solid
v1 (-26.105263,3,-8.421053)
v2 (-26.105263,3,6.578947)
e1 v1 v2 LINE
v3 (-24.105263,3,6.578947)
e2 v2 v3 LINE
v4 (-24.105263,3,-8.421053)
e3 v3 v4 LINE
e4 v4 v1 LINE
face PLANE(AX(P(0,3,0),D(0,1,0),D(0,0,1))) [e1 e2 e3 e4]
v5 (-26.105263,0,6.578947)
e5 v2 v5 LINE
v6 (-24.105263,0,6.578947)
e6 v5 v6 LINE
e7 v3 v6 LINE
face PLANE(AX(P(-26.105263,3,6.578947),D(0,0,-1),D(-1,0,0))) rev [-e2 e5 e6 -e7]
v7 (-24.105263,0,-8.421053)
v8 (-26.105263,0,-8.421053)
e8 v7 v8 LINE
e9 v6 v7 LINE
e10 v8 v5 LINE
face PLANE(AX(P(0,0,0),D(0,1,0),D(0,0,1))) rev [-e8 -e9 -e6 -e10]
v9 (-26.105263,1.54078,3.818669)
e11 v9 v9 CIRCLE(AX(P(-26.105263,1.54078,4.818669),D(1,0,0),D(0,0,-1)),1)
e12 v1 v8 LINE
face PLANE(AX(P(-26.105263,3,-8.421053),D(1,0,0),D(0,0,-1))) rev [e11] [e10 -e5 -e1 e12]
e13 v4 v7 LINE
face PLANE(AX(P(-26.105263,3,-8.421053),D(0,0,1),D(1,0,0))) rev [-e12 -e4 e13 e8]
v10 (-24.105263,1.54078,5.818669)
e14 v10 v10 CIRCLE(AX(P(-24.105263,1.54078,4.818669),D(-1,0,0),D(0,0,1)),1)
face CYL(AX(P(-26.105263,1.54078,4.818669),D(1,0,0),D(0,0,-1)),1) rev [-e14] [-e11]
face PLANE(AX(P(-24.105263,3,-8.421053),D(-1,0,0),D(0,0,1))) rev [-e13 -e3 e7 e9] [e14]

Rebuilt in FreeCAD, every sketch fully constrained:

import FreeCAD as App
import Part
import Sketcher
from FreeCAD import Vector
Q = App.Units.Quantity

doc = App.newDocument("Part")
body = doc.addObject("PartDesign::Body", "Body")

# Sketch on XZ plane
sketch1 = body.newObject("Sketcher::SketchObject", "Sketch")
sketch1.AttachmentSupport = (doc.getObject("XZ_Plane"), [""])
sketch1.MapMode = "FlatFace"
sketch1.addGeometry([
    Part.LineSegment(Vector(-26.1, -8.4, 0), Vector(-26.1, 6.6, 0)),
    Part.LineSegment(Vector(-26.1, 6.6, 0), Vector(-24.1, 6.6, 0)),
    Part.LineSegment(Vector(-24.1, 6.6, 0), Vector(-24.1, -8.4, 0)),
    Part.LineSegment(Vector(-24.1, -8.4, 0), Vector(-26.1, -8.4, 0)),
], False)
sketch1.addConstraint([
    Sketcher.Constraint("Coincident", 0, 2, 1, 1),
    Sketcher.Constraint("Coincident", 1, 2, 2, 1),
    Sketcher.Constraint("Coincident", 2, 2, 3, 1),
    Sketcher.Constraint("Coincident", 3, 2, 0, 1),
    Sketcher.Constraint("Vertical", 0),
    Sketcher.Constraint("Horizontal", 1),
    Sketcher.Constraint("Vertical", 2),
    Sketcher.Constraint("Horizontal", 3),
    Sketcher.Constraint("DistanceX", 1, 1, 1, 2, Q("2 mm")),
    Sketcher.Constraint("DistanceY", 0, 1, 0, 2, Q("15 mm")),
    Sketcher.Constraint("DistanceX", 0, 2, -1, 1, Q("26.105263 mm")),
    Sketcher.Constraint("DistanceY", -1, 1, 0, 2, Q("6.578947 mm")),
])
pad1 = body.newObject("PartDesign::Pad", "Pad")
pad1.Profile = sketch1
pad1.Length = 3
pad1.Reversed = True

# Sketch on YZ plane
sketch2 = body.newObject("Sketcher::SketchObject", "Sketch001")
sketch2.AttachmentSupport = (doc.getObject("YZ_Plane"), [""])
sketch2.MapMode = "FlatFace"
sketch2.addGeometry(Part.Circle(Vector(1.5, 4.8, 0), Vector(0, 0, 1), 1), False)
sketch2.addConstraint([
    Sketcher.Constraint("Diameter", 0, Q("2 mm")),
    Sketcher.Constraint("DistanceX", -1, 1, 0, 3, Q("1.54078 mm")),
    Sketcher.Constraint("DistanceY", -1, 1, 0, 3, Q("4.818669 mm")),
])
pocket1 = body.newObject("PartDesign::Pocket", "Pocket")
pocket1.Profile = sketch2
pocket1.Type = "ThroughAll"

doc.recompute()
